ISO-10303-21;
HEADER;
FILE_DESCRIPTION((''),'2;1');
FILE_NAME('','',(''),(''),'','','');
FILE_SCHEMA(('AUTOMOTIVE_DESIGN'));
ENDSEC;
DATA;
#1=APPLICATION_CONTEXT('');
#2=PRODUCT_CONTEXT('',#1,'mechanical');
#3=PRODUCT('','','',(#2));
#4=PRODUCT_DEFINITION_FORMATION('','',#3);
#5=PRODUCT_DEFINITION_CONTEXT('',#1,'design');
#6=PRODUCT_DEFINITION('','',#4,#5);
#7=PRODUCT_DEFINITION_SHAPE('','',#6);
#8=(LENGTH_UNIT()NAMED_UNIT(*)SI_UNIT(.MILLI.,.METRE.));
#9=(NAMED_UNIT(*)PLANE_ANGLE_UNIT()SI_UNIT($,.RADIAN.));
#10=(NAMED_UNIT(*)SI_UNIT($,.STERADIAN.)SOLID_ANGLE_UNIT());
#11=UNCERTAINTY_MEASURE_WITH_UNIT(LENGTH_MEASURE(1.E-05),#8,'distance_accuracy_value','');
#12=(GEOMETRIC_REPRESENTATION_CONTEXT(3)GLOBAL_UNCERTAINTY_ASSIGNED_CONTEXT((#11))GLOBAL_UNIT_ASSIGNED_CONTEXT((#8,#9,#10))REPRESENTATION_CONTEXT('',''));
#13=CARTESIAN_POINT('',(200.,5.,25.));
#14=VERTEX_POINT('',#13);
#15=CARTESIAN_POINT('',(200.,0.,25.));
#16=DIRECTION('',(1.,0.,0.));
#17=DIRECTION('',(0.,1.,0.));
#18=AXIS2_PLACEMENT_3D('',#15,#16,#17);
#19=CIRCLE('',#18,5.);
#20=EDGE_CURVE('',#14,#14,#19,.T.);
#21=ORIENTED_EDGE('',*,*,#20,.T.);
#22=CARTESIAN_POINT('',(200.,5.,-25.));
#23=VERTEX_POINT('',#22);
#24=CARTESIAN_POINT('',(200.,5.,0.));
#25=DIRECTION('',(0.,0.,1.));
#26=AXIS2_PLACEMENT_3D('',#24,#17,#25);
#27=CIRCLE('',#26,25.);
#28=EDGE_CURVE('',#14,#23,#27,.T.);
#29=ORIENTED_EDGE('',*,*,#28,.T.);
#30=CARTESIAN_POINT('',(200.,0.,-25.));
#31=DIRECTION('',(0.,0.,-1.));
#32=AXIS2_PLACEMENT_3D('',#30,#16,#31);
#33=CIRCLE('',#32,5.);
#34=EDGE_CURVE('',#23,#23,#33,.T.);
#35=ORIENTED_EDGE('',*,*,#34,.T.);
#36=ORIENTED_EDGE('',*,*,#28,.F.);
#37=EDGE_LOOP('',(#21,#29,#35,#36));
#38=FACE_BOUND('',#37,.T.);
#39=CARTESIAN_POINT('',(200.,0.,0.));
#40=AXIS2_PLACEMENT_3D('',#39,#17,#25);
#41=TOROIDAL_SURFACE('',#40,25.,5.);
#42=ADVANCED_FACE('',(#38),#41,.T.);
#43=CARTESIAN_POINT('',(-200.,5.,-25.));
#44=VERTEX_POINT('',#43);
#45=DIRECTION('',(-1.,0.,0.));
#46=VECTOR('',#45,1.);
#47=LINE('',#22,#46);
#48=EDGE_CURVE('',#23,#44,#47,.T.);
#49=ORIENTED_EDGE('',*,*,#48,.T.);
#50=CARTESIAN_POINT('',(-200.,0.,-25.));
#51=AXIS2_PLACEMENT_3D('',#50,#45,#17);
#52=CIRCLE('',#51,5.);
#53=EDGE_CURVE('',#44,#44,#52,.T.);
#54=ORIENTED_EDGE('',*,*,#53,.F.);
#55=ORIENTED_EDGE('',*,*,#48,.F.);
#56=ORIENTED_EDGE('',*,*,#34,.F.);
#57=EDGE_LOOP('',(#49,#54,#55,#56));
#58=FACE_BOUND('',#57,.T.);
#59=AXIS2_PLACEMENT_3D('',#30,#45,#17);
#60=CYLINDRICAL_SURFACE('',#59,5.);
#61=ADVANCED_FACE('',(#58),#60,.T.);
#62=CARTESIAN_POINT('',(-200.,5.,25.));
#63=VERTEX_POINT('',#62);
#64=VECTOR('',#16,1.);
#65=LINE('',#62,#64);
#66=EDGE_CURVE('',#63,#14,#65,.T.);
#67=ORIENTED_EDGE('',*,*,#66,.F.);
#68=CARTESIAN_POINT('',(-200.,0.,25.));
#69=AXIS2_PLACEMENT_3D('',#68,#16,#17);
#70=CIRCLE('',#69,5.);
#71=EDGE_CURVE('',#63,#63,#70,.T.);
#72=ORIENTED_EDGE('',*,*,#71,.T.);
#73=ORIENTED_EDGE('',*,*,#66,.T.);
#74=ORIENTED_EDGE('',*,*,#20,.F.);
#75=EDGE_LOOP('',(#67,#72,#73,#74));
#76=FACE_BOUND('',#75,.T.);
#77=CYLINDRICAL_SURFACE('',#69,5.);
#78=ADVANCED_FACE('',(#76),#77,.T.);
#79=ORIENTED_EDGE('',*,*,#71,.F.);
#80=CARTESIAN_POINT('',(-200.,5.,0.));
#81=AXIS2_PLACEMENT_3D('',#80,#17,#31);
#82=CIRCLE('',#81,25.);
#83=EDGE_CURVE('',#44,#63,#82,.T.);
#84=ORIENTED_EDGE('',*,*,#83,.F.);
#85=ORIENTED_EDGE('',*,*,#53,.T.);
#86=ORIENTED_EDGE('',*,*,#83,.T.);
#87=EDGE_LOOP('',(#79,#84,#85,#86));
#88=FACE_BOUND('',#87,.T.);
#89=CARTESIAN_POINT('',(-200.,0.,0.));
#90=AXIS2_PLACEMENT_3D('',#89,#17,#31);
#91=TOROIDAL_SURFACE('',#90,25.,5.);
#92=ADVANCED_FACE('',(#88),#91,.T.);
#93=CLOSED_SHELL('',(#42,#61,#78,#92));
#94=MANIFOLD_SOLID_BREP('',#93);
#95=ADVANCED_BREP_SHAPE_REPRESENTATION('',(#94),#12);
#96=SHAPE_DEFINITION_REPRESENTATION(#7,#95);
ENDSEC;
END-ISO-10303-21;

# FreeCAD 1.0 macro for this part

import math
import FreeCAD as App
import Part
import Sketcher

doc = App.newDocument("Part")
body = doc.addObject("PartDesign::Body", "Body")

# Sketch on YZ plane
sketch1 = body.newObject("Sketcher::SketchObject", "Sketch")
sketch1.AttachmentSupport = (doc.getObject("YZ_Plane"), [""])
sketch1.MapMode = "FlatFace"
sketch1.addGeometry(Part.Circle(App.Vector(0, 25, 0), App.Vector(0, 0, 1), 5), False)
sketch1.addConstraint([
    Sketcher.Constraint("PointOnObject", 0, 3, -2),
    Sketcher.Constraint("Diameter", 0, 10.0),
    Sketcher.Constraint("DistanceY", -1, 1, 0, 3, 25.0),
])

# Sketch on XZ plane
sketch2 = body.newObject("Sketcher::SketchObject", "Sketch001")
sketch2.AttachmentSupport = (doc.getObject("XZ_Plane"), [""])
sketch2.MapMode = "FlatFace"
sketch2.addGeometry([
    Part.LineSegment(App.Vector(-200, 25, 0), App.Vector(200, 25, 0)),
    Part.ArcOfCircle(Part.Circle(App.Vector(200, 0, 0), App.Vector(0, 0, 1), 25), math.radians(-90), math.radians(90)),
    Part.LineSegment(App.Vector(200, -25, 0), App.Vector(-200, -25, 0)),
    Part.ArcOfCircle(Part.Circle(App.Vector(-200, 0, 0), App.Vector(0, 0, 1), 25), math.radians(90), math.radians(270)),
], False)
sketch2.addConstraint([
    Sketcher.Constraint("Tangent", 0, 2, 1, 2),
    Sketcher.Constraint("Tangent", 1, 1, 2, 1),
    Sketcher.Constraint("Tangent", 2, 2, 3, 2),
    Sketcher.Constraint("Tangent", 3, 1, 0, 1),
    Sketcher.Constraint("Horizontal", 0),
    Sketcher.Constraint("Horizontal", 2),
    Sketcher.Constraint("Symmetric", 1, 3, 3, 3, -1, 1),
    Sketcher.Constraint("Radius", 1, 25.0),
    Sketcher.Constraint("DistanceX", 0, 1, 0, 2, 400.0),
])
doc.recompute()

additivepipe = body.newObject("PartDesign::AdditivePipe", "AdditivePipe")
additivepipe.Profile = sketch1
additivepipe.Spine = (sketch2, ["Edge1", "Edge2", "Edge3", "Edge4"])

doc.recompute()
